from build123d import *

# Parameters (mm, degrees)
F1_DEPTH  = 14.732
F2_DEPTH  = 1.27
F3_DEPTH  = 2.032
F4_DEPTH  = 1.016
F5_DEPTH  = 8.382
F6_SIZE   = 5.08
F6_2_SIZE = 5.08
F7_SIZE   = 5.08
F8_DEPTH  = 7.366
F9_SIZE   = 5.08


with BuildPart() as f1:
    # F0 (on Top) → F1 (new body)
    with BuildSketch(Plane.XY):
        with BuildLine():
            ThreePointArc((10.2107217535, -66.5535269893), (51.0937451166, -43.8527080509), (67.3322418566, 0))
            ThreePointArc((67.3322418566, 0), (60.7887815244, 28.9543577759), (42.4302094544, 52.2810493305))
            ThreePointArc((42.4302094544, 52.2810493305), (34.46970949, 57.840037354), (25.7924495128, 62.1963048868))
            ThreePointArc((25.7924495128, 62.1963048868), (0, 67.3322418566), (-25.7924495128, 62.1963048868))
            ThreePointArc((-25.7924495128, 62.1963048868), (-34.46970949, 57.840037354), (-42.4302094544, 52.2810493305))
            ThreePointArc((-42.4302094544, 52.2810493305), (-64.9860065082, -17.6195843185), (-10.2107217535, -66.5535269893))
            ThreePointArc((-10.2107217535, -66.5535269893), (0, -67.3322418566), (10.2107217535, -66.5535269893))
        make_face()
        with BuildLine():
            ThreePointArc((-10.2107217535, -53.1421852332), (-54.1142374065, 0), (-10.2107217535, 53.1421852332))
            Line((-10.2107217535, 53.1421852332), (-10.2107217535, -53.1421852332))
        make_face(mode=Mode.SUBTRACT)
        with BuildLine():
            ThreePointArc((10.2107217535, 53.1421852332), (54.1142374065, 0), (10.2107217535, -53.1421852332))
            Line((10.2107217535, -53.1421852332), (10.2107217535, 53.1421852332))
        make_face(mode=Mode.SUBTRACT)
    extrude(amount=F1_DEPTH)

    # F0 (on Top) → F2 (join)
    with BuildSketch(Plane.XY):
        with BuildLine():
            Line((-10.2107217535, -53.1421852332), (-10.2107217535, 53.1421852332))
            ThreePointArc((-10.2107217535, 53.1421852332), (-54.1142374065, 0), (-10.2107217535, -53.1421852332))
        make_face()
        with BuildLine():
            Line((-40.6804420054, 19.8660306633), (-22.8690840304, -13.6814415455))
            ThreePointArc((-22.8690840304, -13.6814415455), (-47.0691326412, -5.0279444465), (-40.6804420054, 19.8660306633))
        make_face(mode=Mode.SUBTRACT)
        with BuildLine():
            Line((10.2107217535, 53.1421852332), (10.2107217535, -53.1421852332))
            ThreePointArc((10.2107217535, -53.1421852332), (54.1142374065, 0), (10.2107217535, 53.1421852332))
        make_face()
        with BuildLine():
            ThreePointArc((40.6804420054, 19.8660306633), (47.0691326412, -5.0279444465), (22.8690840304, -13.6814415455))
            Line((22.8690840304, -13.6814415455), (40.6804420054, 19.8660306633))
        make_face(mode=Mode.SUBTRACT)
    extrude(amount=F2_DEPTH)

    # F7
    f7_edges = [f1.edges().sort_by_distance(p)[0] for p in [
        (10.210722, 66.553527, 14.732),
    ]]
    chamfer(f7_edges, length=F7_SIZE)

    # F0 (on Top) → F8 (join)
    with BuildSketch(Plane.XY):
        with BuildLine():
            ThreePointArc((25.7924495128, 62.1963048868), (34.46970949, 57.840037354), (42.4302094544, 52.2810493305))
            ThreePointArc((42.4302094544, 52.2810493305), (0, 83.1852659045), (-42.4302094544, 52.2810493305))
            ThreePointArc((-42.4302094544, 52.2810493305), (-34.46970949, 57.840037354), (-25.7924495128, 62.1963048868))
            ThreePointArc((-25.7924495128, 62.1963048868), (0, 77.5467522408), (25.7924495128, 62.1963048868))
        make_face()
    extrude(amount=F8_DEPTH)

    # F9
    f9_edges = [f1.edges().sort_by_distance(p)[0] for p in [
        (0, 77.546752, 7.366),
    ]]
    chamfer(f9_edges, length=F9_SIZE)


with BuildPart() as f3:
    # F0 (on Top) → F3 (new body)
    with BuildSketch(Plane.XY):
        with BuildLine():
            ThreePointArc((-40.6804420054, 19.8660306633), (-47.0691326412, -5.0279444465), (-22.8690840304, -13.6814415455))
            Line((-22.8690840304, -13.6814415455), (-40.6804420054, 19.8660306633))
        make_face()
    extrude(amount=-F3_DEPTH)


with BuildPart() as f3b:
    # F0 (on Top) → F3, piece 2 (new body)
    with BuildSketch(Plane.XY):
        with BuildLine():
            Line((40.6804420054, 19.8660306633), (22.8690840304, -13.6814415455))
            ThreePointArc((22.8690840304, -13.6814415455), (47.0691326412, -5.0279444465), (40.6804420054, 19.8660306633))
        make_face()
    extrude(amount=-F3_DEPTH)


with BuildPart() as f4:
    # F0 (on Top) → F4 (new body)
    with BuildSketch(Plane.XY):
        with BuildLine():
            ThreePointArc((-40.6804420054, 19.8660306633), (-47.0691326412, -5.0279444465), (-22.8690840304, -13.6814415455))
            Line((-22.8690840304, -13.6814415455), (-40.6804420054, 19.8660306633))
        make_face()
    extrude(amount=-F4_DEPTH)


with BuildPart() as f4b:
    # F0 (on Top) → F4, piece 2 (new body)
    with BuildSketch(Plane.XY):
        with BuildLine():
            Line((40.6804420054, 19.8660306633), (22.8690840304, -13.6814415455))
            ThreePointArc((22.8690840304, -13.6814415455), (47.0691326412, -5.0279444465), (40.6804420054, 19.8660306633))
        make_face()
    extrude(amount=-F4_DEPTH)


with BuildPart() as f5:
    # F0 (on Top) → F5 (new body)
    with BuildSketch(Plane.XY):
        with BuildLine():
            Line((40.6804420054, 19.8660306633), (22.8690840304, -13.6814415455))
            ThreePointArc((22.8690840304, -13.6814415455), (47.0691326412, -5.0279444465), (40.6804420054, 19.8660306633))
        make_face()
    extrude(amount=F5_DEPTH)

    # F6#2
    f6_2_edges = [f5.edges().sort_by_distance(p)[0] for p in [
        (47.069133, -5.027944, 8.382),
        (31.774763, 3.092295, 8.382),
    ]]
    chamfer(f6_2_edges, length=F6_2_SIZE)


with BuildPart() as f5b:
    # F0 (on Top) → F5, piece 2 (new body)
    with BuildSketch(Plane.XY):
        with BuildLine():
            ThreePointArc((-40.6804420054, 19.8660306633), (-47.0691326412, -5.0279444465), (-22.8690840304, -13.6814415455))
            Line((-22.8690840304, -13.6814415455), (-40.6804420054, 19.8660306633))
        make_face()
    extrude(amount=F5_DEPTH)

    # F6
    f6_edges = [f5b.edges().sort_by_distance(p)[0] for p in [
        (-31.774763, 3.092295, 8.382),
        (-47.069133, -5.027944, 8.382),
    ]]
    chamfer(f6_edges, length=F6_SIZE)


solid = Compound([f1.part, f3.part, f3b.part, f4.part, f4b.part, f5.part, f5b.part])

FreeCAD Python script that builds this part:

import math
import FreeCAD as App
import Part
import Sketcher

V = App.Vector
Q = App.Units.Quantity


def edges_at(feature, points):
    """Names of the edges that pass closest to the given points."""
    edges = feature.Shape.Edges
    near = lambda p: min(range(len(edges)), key=lambda i: edges[i].distToShape(Part.Vertex(*p))[0])
    return sorted({f"Edge{near(p) + 1}" for p in points})

doc = App.newDocument("Part")
body = doc.addObject("PartDesign::Body", "Body")

# Sketch on XY plane
sketch1 = body.newObject("Sketcher::SketchObject", "Sketch")
sketch1.AttachmentSupport = (doc.getObject("XY_Plane"), [""])
sketch1.MapMode = "FlatFace"
sketch1.addGeometry([
    Part.ArcOfCircle(Part.Circle(V(0, 0, 0), V(0, 0, 1), 67.332242), math.radians(-81.277625), math.radians(50.937936)),  # 0
    Part.ArcOfCircle(Part.Circle(V(0, 0, 0), V(0, 0, 1), 67.332242), math.radians(50.937936), math.radians(67.476496)),  # 1
    Part.ArcOfCircle(Part.Circle(V(0, 0, 0), V(0, 0, 1), 67.332242), math.radians(67.476496), math.radians(112.523504)),  # 2
    Part.ArcOfCircle(Part.Circle(V(0, 0, 0), V(0, 0, 1), 67.332242), math.radians(112.523504), math.radians(129.062064)),  # 3
    Part.ArcOfCircle(Part.Circle(V(0, 0, 0), V(0, 0, 1), 67.332242), math.radians(129.062064), math.radians(261.277625)),  # 4
    Part.ArcOfCircle(Part.Circle(V(0, 0, 0), V(0, 0, 1), 67.332242), math.radians(-98.722375), math.radians(-81.277625)),  # 5
    Part.LineSegment(V(-10.210722, 53.142185, 0), V(-10.210722, -53.142185, 0)),  # 6
    Part.ArcOfCircle(Part.Circle(V(0, 0, 0), V(0, 0, 1), 54.114237), math.radians(100.876243), math.radians(259.123757)),  # 7
    Part.LineSegment(V(10.210722, -53.142185, 0), V(10.210722, 53.142185, 0)),  # 8
    Part.ArcOfCircle(Part.Circle(V(0, 0, 0), V(0, 0, 1), 54.114237), math.radians(-79.123757), math.radians(79.123757)),  # 9
], False)
sketch1.addConstraint([
    Sketcher.Constraint("Tangent", 0, 2, 1, 1),
    Sketcher.Constraint("Tangent", 1, 2, 2, 1),
    Sketcher.Constraint("Tangent", 2, 2, 3, 1),
    Sketcher.Constraint("Tangent", 3, 2, 4, 1),
    Sketcher.Constraint("Tangent", 4, 2, 5, 1),
    Sketcher.Constraint("Tangent", 5, 2, 0, 1),
    Sketcher.Constraint("Coincident", 6, 1, 7, 1),
    Sketcher.Constraint("Coincident", 7, 2, 6, 2),
    Sketcher.Constraint("Coincident", 8, 1, 9, 1),
    Sketcher.Constraint("Coincident", 9, 2, 8, 2),
    Sketcher.Constraint("Vertical", 6),
    Sketcher.Constraint("Vertical", 8),
    Sketcher.Constraint("Coincident", 0, 3, -1, 1),
    Sketcher.Constraint("Coincident", 2, 3, -1, 1),
    Sketcher.Constraint("Coincident", 7, 3, -1, 1),
    Sketcher.Constraint("Coincident", 9, 3, -1, 1),
    Sketcher.Constraint("Equal", 2, 3),
    Sketcher.Constraint("Equal", 7, 9),
    Sketcher.Constraint("Horizontal", 1, 2, 2, 2),
    Sketcher.Constraint("Horizontal", 0, 2, 3, 2),
    Sketcher.Constraint("Horizontal", 4, 2, 5, 2),
    Sketcher.Constraint("Horizontal", 7, 2, 8, 1),
    Sketcher.Constraint("Vertical", 4, 2, 6, 1),
    Sketcher.Constraint("Radius", 0, 67.332242),
    Sketcher.Constraint("Radius", 7, 54.114237),
    Sketcher.Constraint("DistanceY", 6, 2, 6, 1, 106.28437),
    Sketcher.Constraint("DistanceX", 2, 2, 1, 2, 51.584899),
    Sketcher.Constraint("DistanceX", -1, 1, 0, 2, 42.430209),
])
pad1 = body.newObject("PartDesign::Pad", "Pad")
pad1.Profile = sketch1
pad1.Length = Q("0.58 in")

# Sketch on XY plane
sketch2 = body.newObject("Sketcher::SketchObject", "Sketch001")
sketch2.AttachmentSupport = (doc.getObject("XY_Plane"), [""])
sketch2.MapMode = "FlatFace"
sketch2.addGeometry([
    Part.LineSegment(V(-10.210722, -53.142185, 0), V(-10.210722, 53.142185, 0)),  # 0
    Part.ArcOfCircle(Part.Circle(V(0, 0, 0), V(0, 0, 1), 54.114237), math.radians(100.876243), math.radians(259.123757)),  # 1
    Part.ArcOfCircle(Part.Circle(V(-30.22385, 3.915721, 0), V(0, 0, 1), 19.072302), math.radians(123.247766), math.radians(292.682577)),  # 2
    Part.LineSegment(V(-40.680442, 19.866031, 0), V(-22.869084, -13.681442, 0)),  # 3
    Part.LineSegment(V(10.210722, 53.142185, 0), V(10.210722, -53.142185, 0)),  # 4
    Part.ArcOfCircle(Part.Circle(V(0, 0, 0), V(0, 0, 1), 54.114237), math.radians(-79.123757), math.radians(79.123757)),  # 5
    Part.LineSegment(V(22.869084, -13.681442, 0), V(40.680442, 19.866031, 0)),  # 6
    Part.ArcOfCircle(Part.Circle(V(30.22385, 3.915721, 0), V(0, 0, 1), 19.072302), math.radians(-112.682577), math.radians(56.752234)),  # 7
], False)
sketch2.addConstraint([
    Sketcher.Constraint("Coincident", 0, 1, 1, 2),
    Sketcher.Constraint("Coincident", 1, 1, 0, 2),
    Sketcher.Constraint("Coincident", 2, 1, 3, 1),
    Sketcher.Constraint("Coincident", 3, 2, 2, 2),
    Sketcher.Constraint("Coincident", 4, 1, 5, 2),
    Sketcher.Constraint("Coincident", 5, 1, 4, 2),
    Sketcher.Constraint("Coincident", 6, 1, 7, 1),
    Sketcher.Constraint("Coincident", 7, 2, 6, 2),
    Sketcher.Constraint("Vertical", 0),
    Sketcher.Constraint("Vertical", 4),
    Sketcher.Constraint("Coincident", 1, 3, -1, 1),
    Sketcher.Constraint("Coincident", 5, 3, -1, 1),
    Sketcher.Constraint("Equal", 1, 5),
    Sketcher.Constraint("Equal", 2, 7),
    Sketcher.Constraint("Symmetric", 2, 3, 7, 3, -2),
    Sketcher.Constraint("Horizontal", 1, 1, 4, 1),
    Sketcher.Constraint("Horizontal", 3, 2, 6, 1),
    Sketcher.Constraint("Horizontal", 2, 1, 7, 2),
    Sketcher.Constraint("Radius", 1, 54.114237),
    Sketcher.Constraint("Radius", 2, 19.072302),
    Sketcher.Constraint("DistanceY", 0, 1, 0, 2, 106.28437),
    Sketcher.Constraint("DistanceX", 2, 3, 7, 3, 60.4477),
    Sketcher.Constraint("DistanceY", -1, 1, 2, 3, 3.915721),
    Sketcher.Constraint("DistanceY", -1, 1, 2, 1, 19.866031),
    Sketcher.Constraint("DistanceY", 3, 2, -1, 1, 13.681442),
])
pad2 = body.newObject("PartDesign::Pad", "Pad001")
pad2.Profile = sketch2
pad2.Length = Q("0.05 in")
doc.recompute()

chamfer = body.newObject("PartDesign::Chamfer", "Chamfer")
chamfer.Base = (pad2, edges_at(pad2, [(0, 67.332, 14.732)]))
chamfer.Size = Q("0.2 in")

# Sketch on XY plane
sketch3 = body.newObject("Sketcher::SketchObject", "Sketch002")
sketch3.AttachmentSupport = (doc.getObject("XY_Plane"), [""])
sketch3.MapMode = "FlatFace"
sketch3.addGeometry([
    Part.ArcOfCircle(Part.Circle(V(0, 0, 0), V(0, 0, 1), 67.332242), math.radians(50.937936), math.radians(67.476496)),
    Part.ArcOfCircle(Part.Circle(V(0, 38.605697, 0), V(0, 0, 1), 44.579568), math.radians(17.864248), math.radians(162.135752)),
    Part.ArcOfCircle(Part.Circle(V(0, 0, 0), V(0, 0, 1), 67.332242), math.radians(112.523504), math.radians(129.062064)),
    Part.ArcOfCircle(Part.Circle(V(0, 48.202764, 0), V(0, 0, 1), 29.343988), math.radians(28.481782), math.radians(151.518218)),
], False)
sketch3.addConstraint([
    Sketcher.Constraint("Coincident", 0, 1, 1, 1),
    Sketcher.Constraint("Coincident", 1, 2, 2, 2),
    Sketcher.Constraint("Coincident", 2, 1, 3, 2),
    Sketcher.Constraint("Coincident", 3, 1, 0, 2),
    Sketcher.Constraint("Coincident", 0, 3, -1, 1),
    Sketcher.Constraint("Coincident", 2, 3, -1, 1),
    Sketcher.Constraint("Equal", 0, 2),
    Sketcher.Constraint("PointOnObject", 1, 3, -2),
    Sketcher.Constraint("PointOnObject", 3, 3, -2),
    Sketcher.Constraint("Radius", 0, 67.332242),
    Sketcher.Constraint("Radius", 1, 44.579568),
    Sketcher.Constraint("Radius", 3, 29.343988),
    Sketcher.Constraint("DistanceX", 2, 1, 3, 1, 51.584899),
    Sketcher.Constraint("DistanceX", -1, 1, 0, 1, 42.430209),
])
pad3 = body.newObject("PartDesign::Pad", "Pad002")
pad3.Profile = sketch3
pad3.Length = Q("0.29 in")
doc.recompute()

chamfer2 = body.newObject("PartDesign::Chamfer", "Chamfer001")
chamfer2.Base = (pad3, edges_at(pad3, [(0, 77.547, 7.366)]))
chamfer2.Size = Q("0.2 in")
body2 = doc.addObject("PartDesign::Body", "Body001")

# Sketch on XY plane
sketch4 = body2.newObject("Sketcher::SketchObject", "Sketch003")
sketch4.AttachmentSupport = (doc.getObject("XY_Plane001"), [""])
sketch4.MapMode = "FlatFace"
sketch4.addGeometry([
    Part.ArcOfCircle(Part.Circle(V(-30.22385, 3.915721, 0), V(0, 0, 1), 19.072302), math.radians(123.247766), math.radians(292.682577)),
    Part.LineSegment(V(-22.869084, -13.681442, 0), V(-40.680442, 19.866031, 0)),
], False)
sketch4.addConstraint([
    Sketcher.Constraint("Coincident", 0, 1, 1, 2),
    Sketcher.Constraint("Coincident", 1, 1, 0, 2),
    Sketcher.Constraint("Radius", 0, 19.072302),
    Sketcher.Constraint("DistanceX", 0, 3, -1, 1, 30.22385),
    Sketcher.Constraint("DistanceY", -1, 1, 0, 3, 3.915721),
    Sketcher.Constraint("DistanceY", -1, 1, 0, 1, 19.866031),
    Sketcher.Constraint("DistanceY", 1, 1, -1, 1, 13.681442),
])
pad4 = body2.newObject("PartDesign::Pad", "Pad003")
pad4.Profile = sketch4
pad4.Length = Q("0.08 in")
pad4.Reversed = True
body3 = doc.addObject("PartDesign::Body", "Body002")

# Sketch on XY plane
sketch5 = body3.newObject("Sketcher::SketchObject", "Sketch004")
sketch5.AttachmentSupport = (doc.getObject("XY_Plane002"), [""])
sketch5.MapMode = "FlatFace"
sketch5.addGeometry([
    Part.LineSegment(V(40.680442, 19.866031, 0), V(22.869084, -13.681442, 0)),
    Part.ArcOfCircle(Part.Circle(V(30.22385, 3.915721, 0), V(0, 0, 1), 19.072302), math.radians(-112.682577), math.radians(56.752234)),
], False)
sketch5.addConstraint([
    Sketcher.Constraint("Coincident", 0, 1, 1, 2),
    Sketcher.Constraint("Coincident", 1, 1, 0, 2),
    Sketcher.Constraint("Radius", 1, 19.072302),
    Sketcher.Constraint("DistanceX", -1, 1, 1, 3, 30.22385),
    Sketcher.Constraint("DistanceY", -1, 1, 1, 3, 3.915721),
    Sketcher.Constraint("DistanceY", -1, 1, 0, 1, 19.866031),
    Sketcher.Constraint("DistanceY", 1, 1, -1, 1, 13.681442),
])
pad5 = body3.newObject("PartDesign::Pad", "Pad004")
pad5.Profile = sketch5
pad5.Length = Q("0.08 in")
pad5.Reversed = True
body4 = doc.addObject("PartDesign::Body", "Body003")

# Sketch on XY plane
sketch6 = body4.newObject("Sketcher::SketchObject", "Sketch005")
sketch6.AttachmentSupport = (doc.getObject("XY_Plane003"), [""])
sketch6.MapMode = "FlatFace"
sketch6.addGeometry([
    Part.ArcOfCircle(Part.Circle(V(-30.22385, 3.915721, 0), V(0, 0, 1), 19.072302), math.radians(123.247766), math.radians(292.682577)),
    Part.LineSegment(V(-22.869084, -13.681442, 0), V(-40.680442, 19.866031, 0)),
], False)
sketch6.addConstraint([
    Sketcher.Constraint("Coincident", 0, 1, 1, 2),
    Sketcher.Constraint("Coincident", 1, 1, 0, 2),
    Sketcher.Constraint("Radius", 0, 19.072302),
    Sketcher.Constraint("DistanceX", 0, 3, -1, 1, 30.22385),
    Sketcher.Constraint("DistanceY", -1, 1, 0, 3, 3.915721),
    Sketcher.Constraint("DistanceY", -1, 1, 0, 1, 19.866031),
    Sketcher.Constraint("DistanceY", 1, 1, -1, 1, 13.681442),
])
pad6 = body4.newObject("PartDesign::Pad", "Pad005")
pad6.Profile = sketch6
pad6.Length = Q("0.04 in")
pad6.Reversed = True
body5 = doc.addObject("PartDesign::Body", "Body004")

# Sketch on XY plane
sketch7 = body5.newObject("Sketcher::SketchObject", "Sketch006")
sketch7.AttachmentSupport = (doc.getObject("XY_Plane004"), [""])
sketch7.MapMode = "FlatFace"
sketch7.addGeometry([
    Part.LineSegment(V(40.680442, 19.866031, 0), V(22.869084, -13.681442, 0)),
    Part.ArcOfCircle(Part.Circle(V(30.22385, 3.915721, 0), V(0, 0, 1), 19.072302), math.radians(-112.682577), math.radians(56.752234)),
], False)
sketch7.addConstraint([
    Sketcher.Constraint("Coincident", 0, 1, 1, 2),
    Sketcher.Constraint("Coincident", 1, 1, 0, 2),
    Sketcher.Constraint("Radius", 1, 19.072302),
    Sketcher.Constraint("DistanceX", -1, 1, 1, 3, 30.22385),
    Sketcher.Constraint("DistanceY", -1, 1, 1, 3, 3.915721),
    Sketcher.Constraint("DistanceY", -1, 1, 0, 1, 19.866031),
    Sketcher.Constraint("DistanceY", 1, 1, -1, 1, 13.681442),
])
pad7 = body5.newObject("PartDesign::Pad", "Pad006")
pad7.Profile = sketch7
pad7.Length = Q("0.04 in")
pad7.Reversed = True
body6 = doc.addObject("PartDesign::Body", "Body005")

# Sketch on XY plane
sketch8 = body6.newObject("Sketcher::SketchObject", "Sketch007")
sketch8.AttachmentSupport = (doc.getObject("XY_Plane005"), [""])
sketch8.MapMode = "FlatFace"
sketch8.addGeometry([
    Part.LineSegment(V(40.680442, 19.866031, 0), V(22.869084, -13.681442, 0)),
    Part.ArcOfCircle(Part.Circle(V(30.22385, 3.915721, 0), V(0, 0, 1), 19.072302), math.radians(-112.682577), math.radians(56.752234)),
], False)
sketch8.addConstraint([
    Sketcher.Constraint("Coincident", 0, 1, 1, 2),
    Sketcher.Constraint("Coincident", 1, 1, 0, 2),
    Sketcher.Constraint("Radius", 1, 19.072302),
    Sketcher.Constraint("DistanceX", -1, 1, 1, 3, 30.22385),
    Sketcher.Constraint("DistanceY", -1, 1, 1, 3, 3.915721),
    Sketcher.Constraint("DistanceY", -1, 1, 0, 1, 19.866031),
    Sketcher.Constraint("DistanceY", 1, 1, -1, 1, 13.681442),
])
pad8 = body6.newObject("PartDesign::Pad", "Pad007")
pad8.Profile = sketch8
pad8.Length = Q("0.33 in")
doc.recompute()

chamfer3 = body6.newObject("PartDesign::Chamfer", "Chamfer002")
chamfer3.Base = (pad8, edges_at(pad8, [(47.069, -5.028, 8.382), (31.775, 3.092, 8.382)]))
chamfer3.Size = Q("0.2 in")
body7 = doc.addObject("PartDesign::Body", "Body006")

# Sketch on XY plane
sketch9 = body7.newObject("Sketcher::SketchObject", "Sketch008")
sketch9.AttachmentSupport = (doc.getObject("XY_Plane006"), [""])
sketch9.MapMode = "FlatFace"
sketch9.addGeometry([
    Part.ArcOfCircle(Part.Circle(V(-30.22385, 3.915721, 0), V(0, 0, 1), 19.072302), math.radians(123.247766), math.radians(292.682577)),
    Part.LineSegment(V(-22.869084, -13.681442, 0), V(-40.680442, 19.866031, 0)),
], False)
sketch9.addConstraint([
    Sketcher.Constraint("Coincident", 0, 1, 1, 2),
    Sketcher.Constraint("Coincident", 1, 1, 0, 2),
    Sketcher.Constraint("Radius", 0, 19.072302),
    Sketcher.Constraint("DistanceX", 0, 3, -1, 1, 30.22385),
    Sketcher.Constraint("DistanceY", -1, 1, 0, 3, 3.915721),
    Sketcher.Constraint("DistanceY", -1, 1, 0, 1, 19.866031),
    Sketcher.Constraint("DistanceY", 1, 1, -1, 1, 13.681442),
])
pad9 = body7.newObject("PartDesign::Pad", "Pad008")
pad9.Profile = sketch9
pad9.Length = Q("0.33 in")
doc.recompute()

chamfer4 = body7.newObject("PartDesign::Chamfer", "Chamfer003")
chamfer4.Base = (pad9, edges_at(pad9, [(-31.775, 3.092, 8.382), (-47.069, -5.028, 8.382)]))
chamfer4.Size = Q("0.2 in")

doc.recompute()
